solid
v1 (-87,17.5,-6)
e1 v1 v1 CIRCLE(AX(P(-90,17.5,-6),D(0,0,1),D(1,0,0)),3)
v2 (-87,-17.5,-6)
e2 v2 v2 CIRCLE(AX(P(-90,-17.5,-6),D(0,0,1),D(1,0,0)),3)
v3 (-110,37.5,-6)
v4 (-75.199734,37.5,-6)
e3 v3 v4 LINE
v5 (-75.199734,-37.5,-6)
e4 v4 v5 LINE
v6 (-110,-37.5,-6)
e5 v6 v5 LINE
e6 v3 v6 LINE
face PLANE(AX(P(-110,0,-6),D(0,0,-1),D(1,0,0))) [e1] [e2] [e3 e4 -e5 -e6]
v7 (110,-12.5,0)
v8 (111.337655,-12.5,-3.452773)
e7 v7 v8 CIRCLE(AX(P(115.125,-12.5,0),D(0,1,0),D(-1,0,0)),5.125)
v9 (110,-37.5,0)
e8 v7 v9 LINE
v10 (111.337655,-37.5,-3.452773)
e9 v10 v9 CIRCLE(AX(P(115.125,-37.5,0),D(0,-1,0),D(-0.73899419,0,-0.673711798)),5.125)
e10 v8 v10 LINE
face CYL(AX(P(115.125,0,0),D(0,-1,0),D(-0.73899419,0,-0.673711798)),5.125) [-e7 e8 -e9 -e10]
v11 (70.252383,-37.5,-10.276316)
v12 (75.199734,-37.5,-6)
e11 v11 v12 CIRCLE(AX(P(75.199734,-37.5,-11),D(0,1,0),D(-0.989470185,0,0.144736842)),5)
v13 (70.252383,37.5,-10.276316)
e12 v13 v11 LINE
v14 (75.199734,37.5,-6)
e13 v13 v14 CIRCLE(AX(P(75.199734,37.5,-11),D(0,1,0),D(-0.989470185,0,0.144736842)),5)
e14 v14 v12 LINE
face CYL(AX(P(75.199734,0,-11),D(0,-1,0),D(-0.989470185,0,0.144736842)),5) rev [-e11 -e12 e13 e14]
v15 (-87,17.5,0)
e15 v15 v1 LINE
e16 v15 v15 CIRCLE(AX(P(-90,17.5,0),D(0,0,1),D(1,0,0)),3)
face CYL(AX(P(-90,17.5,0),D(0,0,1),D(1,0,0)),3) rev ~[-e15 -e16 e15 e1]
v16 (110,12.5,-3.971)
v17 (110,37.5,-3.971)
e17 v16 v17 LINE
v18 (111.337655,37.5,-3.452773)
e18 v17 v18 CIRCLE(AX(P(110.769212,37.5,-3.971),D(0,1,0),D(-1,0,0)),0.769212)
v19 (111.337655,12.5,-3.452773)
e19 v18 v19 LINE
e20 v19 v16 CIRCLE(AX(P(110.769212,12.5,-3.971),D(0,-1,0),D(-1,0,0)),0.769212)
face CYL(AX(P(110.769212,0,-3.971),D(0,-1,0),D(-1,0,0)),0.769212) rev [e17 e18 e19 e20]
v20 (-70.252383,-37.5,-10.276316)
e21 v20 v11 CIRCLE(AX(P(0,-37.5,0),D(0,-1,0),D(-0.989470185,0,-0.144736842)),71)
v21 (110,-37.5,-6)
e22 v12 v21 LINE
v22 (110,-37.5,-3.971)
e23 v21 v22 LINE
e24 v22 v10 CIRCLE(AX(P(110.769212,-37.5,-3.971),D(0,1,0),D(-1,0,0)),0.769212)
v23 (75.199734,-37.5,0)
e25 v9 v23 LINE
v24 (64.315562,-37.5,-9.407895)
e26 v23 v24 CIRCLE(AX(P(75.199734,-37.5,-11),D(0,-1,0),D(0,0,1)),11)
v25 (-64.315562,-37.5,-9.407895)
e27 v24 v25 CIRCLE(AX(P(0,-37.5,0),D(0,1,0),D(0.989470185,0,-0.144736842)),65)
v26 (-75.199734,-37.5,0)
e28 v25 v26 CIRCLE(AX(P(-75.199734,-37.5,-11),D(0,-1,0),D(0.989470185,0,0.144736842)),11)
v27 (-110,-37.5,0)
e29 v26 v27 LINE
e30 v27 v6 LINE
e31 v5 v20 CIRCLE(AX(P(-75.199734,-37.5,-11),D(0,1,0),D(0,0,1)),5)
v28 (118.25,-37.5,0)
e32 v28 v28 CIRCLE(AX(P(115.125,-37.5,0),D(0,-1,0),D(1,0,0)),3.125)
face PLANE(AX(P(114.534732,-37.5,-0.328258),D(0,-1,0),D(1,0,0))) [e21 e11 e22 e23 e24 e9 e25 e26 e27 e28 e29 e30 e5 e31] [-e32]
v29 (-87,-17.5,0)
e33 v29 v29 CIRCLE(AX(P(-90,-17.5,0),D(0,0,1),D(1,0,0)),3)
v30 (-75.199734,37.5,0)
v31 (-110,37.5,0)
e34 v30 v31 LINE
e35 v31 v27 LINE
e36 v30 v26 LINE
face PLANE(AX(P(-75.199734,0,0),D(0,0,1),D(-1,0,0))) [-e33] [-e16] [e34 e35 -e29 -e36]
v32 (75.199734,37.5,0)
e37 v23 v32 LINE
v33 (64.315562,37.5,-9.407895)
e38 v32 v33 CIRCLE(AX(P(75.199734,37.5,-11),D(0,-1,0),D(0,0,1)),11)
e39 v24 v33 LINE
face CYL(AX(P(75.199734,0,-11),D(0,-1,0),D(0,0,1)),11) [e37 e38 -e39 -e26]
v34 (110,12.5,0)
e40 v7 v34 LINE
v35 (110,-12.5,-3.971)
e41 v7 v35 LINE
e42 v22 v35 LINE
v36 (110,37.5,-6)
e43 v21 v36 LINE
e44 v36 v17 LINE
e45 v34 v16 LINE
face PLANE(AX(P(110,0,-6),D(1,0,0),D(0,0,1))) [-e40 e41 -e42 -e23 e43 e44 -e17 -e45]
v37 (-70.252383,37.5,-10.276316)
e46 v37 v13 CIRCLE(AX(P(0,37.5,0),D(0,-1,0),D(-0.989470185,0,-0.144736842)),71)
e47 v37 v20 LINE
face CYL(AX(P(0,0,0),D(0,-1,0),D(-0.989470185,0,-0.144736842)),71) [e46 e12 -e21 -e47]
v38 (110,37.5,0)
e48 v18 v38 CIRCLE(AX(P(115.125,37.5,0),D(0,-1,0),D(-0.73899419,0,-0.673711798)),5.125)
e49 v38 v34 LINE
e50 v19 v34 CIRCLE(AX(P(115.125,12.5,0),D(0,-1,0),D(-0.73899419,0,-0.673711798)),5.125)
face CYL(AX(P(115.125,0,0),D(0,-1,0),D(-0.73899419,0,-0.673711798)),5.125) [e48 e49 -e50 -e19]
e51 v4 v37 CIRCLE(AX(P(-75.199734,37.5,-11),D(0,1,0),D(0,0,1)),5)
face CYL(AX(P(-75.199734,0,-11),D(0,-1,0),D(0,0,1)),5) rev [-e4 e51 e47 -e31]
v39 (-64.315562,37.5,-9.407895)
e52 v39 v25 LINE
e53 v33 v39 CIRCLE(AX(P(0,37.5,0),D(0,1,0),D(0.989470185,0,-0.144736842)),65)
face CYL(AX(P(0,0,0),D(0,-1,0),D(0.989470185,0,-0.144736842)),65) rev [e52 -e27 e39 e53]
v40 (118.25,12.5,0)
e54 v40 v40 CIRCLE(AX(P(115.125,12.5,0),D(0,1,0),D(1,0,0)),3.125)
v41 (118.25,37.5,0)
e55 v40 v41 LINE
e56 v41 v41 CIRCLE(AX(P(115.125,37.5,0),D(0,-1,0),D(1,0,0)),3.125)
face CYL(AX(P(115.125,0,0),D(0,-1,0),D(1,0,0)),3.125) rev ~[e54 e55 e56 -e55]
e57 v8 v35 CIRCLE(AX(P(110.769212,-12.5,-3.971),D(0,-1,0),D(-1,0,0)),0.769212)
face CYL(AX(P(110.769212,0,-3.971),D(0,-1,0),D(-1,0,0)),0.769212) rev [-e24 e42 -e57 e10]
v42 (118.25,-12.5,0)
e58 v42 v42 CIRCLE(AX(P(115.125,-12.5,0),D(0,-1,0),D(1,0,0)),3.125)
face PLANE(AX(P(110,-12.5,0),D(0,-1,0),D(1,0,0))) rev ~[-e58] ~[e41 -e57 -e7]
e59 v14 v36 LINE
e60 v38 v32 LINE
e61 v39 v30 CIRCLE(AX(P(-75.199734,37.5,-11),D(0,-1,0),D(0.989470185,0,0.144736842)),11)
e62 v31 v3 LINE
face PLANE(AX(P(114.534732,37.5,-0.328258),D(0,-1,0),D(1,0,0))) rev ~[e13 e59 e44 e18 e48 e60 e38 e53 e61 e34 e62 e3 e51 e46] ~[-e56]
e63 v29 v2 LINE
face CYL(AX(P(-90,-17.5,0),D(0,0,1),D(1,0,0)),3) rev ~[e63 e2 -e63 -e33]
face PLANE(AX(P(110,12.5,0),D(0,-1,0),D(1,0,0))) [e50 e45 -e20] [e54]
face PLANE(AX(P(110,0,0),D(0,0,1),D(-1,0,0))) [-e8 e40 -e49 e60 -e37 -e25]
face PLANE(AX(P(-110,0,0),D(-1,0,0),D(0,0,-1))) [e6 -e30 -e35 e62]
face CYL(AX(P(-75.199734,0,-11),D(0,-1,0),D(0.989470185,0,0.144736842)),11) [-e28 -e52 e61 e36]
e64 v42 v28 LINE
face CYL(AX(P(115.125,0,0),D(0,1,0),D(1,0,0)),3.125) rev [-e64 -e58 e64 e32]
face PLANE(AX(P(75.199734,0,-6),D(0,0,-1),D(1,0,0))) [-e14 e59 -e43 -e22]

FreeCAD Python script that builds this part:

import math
import FreeCAD as App
import Part
import Sketcher
from FreeCAD import Vector


def add_polygon(sketch, points):
    """Adds a closed chain of lines whose ends are joined by coincident constraints."""
    first, n = sketch.GeometryCount, len(points)
    for a, b in zip(points, points[1:] + points[:1]):
        sketch.addGeometry(Part.LineSegment(App.Vector(*a, 0), App.Vector(*b, 0)), False)
    for i in range(n):
        sketch.addConstraint(Sketcher.Constraint("Coincident", first + i, 2, first + (i + 1) % n, 1))

doc = App.newDocument("Part")
body = doc.addObject("PartDesign::Body", "Body")

# Sketch on XZ plane
sketch1 = body.newObject("Sketcher::SketchObject", "Sketch")
sketch1.AttachmentSupport = (doc.getObject("XZ_Plane"), [""])
sketch1.MapMode = "FlatFace"
sketch1.addGeometry(Part.ArcOfCircle(Part.Circle(Vector(0, 0, 0), Vector(0, 0, 1), 65), math.radians(-172), math.radians(-8)), False)
sketch1.addGeometry(Part.ArcOfCircle(Part.Circle(Vector(-75, -11, 0), Vector(0, 0, 1), 11), math.radians(8), math.radians(90)), False)
sketch1.addGeometry(Part.LineSegment(Vector(-75, 0, 0), Vector(-110, 0, 0)), False)
sketch1.addGeometry(Part.LineSegment(Vector(-110, 0, 0), Vector(-110, -6, 0)), False)
sketch1.addGeometry(Part.LineSegment(Vector(-110, -6, 0), Vector(-75, -6, 0)), False)
sketch1.addGeometry(Part.ArcOfCircle(Part.Circle(Vector(-75, -11, 0), Vector(0, 0, 1), 5), math.radians(8), math.radians(90)), False)
sketch1.addGeometry(Part.ArcOfCircle(Part.Circle(Vector(0, 0, 0), Vector(0, 0, 1), 71), math.radians(-172), math.radians(-8)), False)
sketch1.addGeometry(Part.ArcOfCircle(Part.Circle(Vector(75, -11, 0), Vector(0, 0, 1), 5), math.radians(90), math.radians(172)), False)
sketch1.addGeometry(Part.LineSegment(Vector(75, -6, 0), Vector(110, -6, 0)), False)
sketch1.addGeometry(Part.LineSegment(Vector(110, -6, 0), Vector(110, 0, 0)), False)
sketch1.addGeometry(Part.LineSegment(Vector(110, 0, 0), Vector(75, 0, 0)), False)
sketch1.addGeometry(Part.ArcOfCircle(Part.Circle(Vector(75, -11, 0), Vector(0, 0, 1), 11), math.radians(90), math.radians(172)), False)
sketch1.addConstraint(Sketcher.Constraint("Tangent", 0, 1, 1, 1))
sketch1.addConstraint(Sketcher.Constraint("Tangent", 1, 2, 2, 1))
sketch1.addConstraint(Sketcher.Constraint("Coincident", 2, 2, 3, 1))
sketch1.addConstraint(Sketcher.Constraint("Coincident", 3, 2, 4, 1))
sketch1.addConstraint(Sketcher.Constraint("Tangent", 4, 2, 5, 2))
sketch1.addConstraint(Sketcher.Constraint("Tangent", 5, 1, 6, 1))
sketch1.addConstraint(Sketcher.Constraint("Tangent", 6, 2, 7, 2))
sketch1.addConstraint(Sketcher.Constraint("Tangent", 7, 1, 8, 1))
sketch1.addConstraint(Sketcher.Constraint("Coincident", 8, 2, 9, 1))
sketch1.addConstraint(Sketcher.Constraint("Coincident", 9, 2, 10, 1))
sketch1.addConstraint(Sketcher.Constraint("Tangent", 10, 2, 11, 1))
sketch1.addConstraint(Sketcher.Constraint("Tangent", 11, 2, 0, 2))
sketch1.addConstraint(Sketcher.Constraint("Horizontal", 2))
sketch1.addConstraint(Sketcher.Constraint("Vertical", 3))
sketch1.addConstraint(Sketcher.Constraint("Horizontal", 4))
sketch1.addConstraint(Sketcher.Constraint("Horizontal", 8))
sketch1.addConstraint(Sketcher.Constraint("Vertical", 9))
sketch1.addConstraint(Sketcher.Constraint("Horizontal", 10))
sketch1.addConstraint(Sketcher.Constraint("Coincident", 0, 3, -1, 1))
sketch1.addConstraint(Sketcher.Constraint("Coincident", 6, 3, -1, 1))
sketch1.addConstraint(Sketcher.Constraint("Coincident", 5, 3, 1, 3))
sketch1.addConstraint(Sketcher.Constraint("Coincident", 11, 3, 7, 3))
sketch1.addConstraint(Sketcher.Constraint("Equal", 5, 7))
sketch1.addConstraint(Sketcher.Constraint("Symmetric", 2, 2, 9, 2, -1, 1))
sketch1.addConstraint(Sketcher.Constraint("PointOnObject", 1, 2, -1))
sketch1.addConstraint(Sketcher.Constraint("Radius", 0, 65.0))
sketch1.addConstraint(Sketcher.Constraint("Radius", 1, 11.0))
sketch1.addConstraint(Sketcher.Constraint("Radius", 5, 5.0))
sketch1.addConstraint(Sketcher.Constraint("DistanceX", 2, 2, -1, 1, 110.0))
pad1 = body.newObject("PartDesign::Pad", "Pad")
pad1.Profile = sketch1
pad1.Length = 75
pad1.Midplane = True

# Sketch on XZ plane
sketch2 = body.newObject("Sketcher::SketchObject", "Sketch001")
sketch2.AttachmentSupport = (doc.getObject("XZ_Plane"), [""])
sketch2.MapMode = "FlatFace"
sketch2.addGeometry(Part.ArcOfCircle(Part.Circle(Vector(110.8, -4, 0), Vector(0, 0, 1), 0.8), math.radians(42), math.radians(180)), False)
sketch2.addGeometry(Part.ArcOfCircle(Part.Circle(Vector(115.1, 0, 0), Vector(0, 0, 1), 5.1), math.radians(-138), math.radians(180)), False)
sketch2.addGeometry(Part.LineSegment(Vector(110, 0, 0), Vector(110, -4, 0)), False)
sketch2.addGeometry(Part.Circle(Vector(115.1, 0, 0), Vector(0, 0, 1), 3.1), False)
sketch2.addConstraint(Sketcher.Constraint("Tangent", 0, 1, 1, 1))
sketch2.addConstraint(Sketcher.Constraint("Tangent", 1, 2, 2, 1))
sketch2.addConstraint(Sketcher.Constraint("Tangent", 2, 2, 0, 2))
sketch2.addConstraint(Sketcher.Constraint("Vertical", 2))
sketch2.addConstraint(Sketcher.Constraint("Coincident", 3, 3, 1, 3))
sketch2.addConstraint(Sketcher.Constraint("PointOnObject", 1, 3, -1))
sketch2.addConstraint(Sketcher.Constraint("Diameter", 3, 6.25))
sketch2.addConstraint(Sketcher.Constraint("DistanceX", -1, 1, 1, 2, 110.0))
sketch2.addConstraint(Sketcher.Constraint("Radius", 1, 5.125))
sketch2.addConstraint(Sketcher.Constraint("DistanceY", 2, 2, 2, 1, 3.971))
pad2 = body.newObject("PartDesign::Pad", "Pad001")
pad2.Profile = sketch2
pad2.Type = "TwoLengths"
pad2.Length = 37.5
pad2.Length2 = 37.5

# Sketch on XY plane
sketch3 = body.newObject("Sketcher::SketchObject", "Sketch002")
sketch3.AttachmentSupport = (doc.getObject("XY_Plane"), [""])
sketch3.MapMode = "FlatFace"
add_polygon(sketch3, [(110, 12), (110, -12), (123, -12), (123, 12)])  # lines 0-3
sketch3.addConstraint(Sketcher.Constraint("Vertical", 0))
sketch3.addConstraint(Sketcher.Constraint("Horizontal", 1))
sketch3.addConstraint(Sketcher.Constraint("Vertical", 2))
sketch3.addConstraint(Sketcher.Constraint("Horizontal", 3))
sketch3.addConstraint(Sketcher.Constraint("DistanceY", 0, 2, 0, 1, 25.0))
sketch3.addConstraint(Sketcher.Constraint("DistanceX", -1, 1, 0, 2, 110.0))
sketch3.addConstraint(Sketcher.Constraint("DistanceY", 0, 2, -1, 1, 12.5))
sketch3.addConstraint(Sketcher.Constraint("DistanceX", 1, 1, 1, 2, 12.726672))
pocket1 = body.newObject("PartDesign::Pocket", "Pocket")
pocket1.Profile = sketch3
pocket1.Type = "ThroughAll"
pocket1.Midplane = True

# Sketch on XY plane
sketch4 = body.newObject("Sketcher::SketchObject", "Sketch003")
sketch4.AttachmentSupport = (doc.getObject("XY_Plane"), [""])
sketch4.MapMode = "FlatFace"
sketch4.addGeometry(Part.Circle(Vector(-90, 17.5, 0), Vector(0, 0, 1), 3), False)
sketch4.addGeometry(Part.Circle(Vector(-90, -17.5, 0), Vector(0, 0, 1), 3), False)
sketch4.addConstraint(Sketcher.Constraint("Equal", 0, 1))
sketch4.addConstraint(Sketcher.Constraint("Symmetric", 0, 3, 1, 3, -1))
sketch4.addConstraint(Sketcher.Constraint("Diameter", 0, 6.0))
sketch4.addConstraint(Sketcher.Constraint("DistanceX", 0, 3, -1, 1, 90.0))
sketch4.addConstraint(Sketcher.Constraint("DistanceY", 1, 3, 0, 3, 35.0))
pocket2 = body.newObject("PartDesign::Pocket", "Pocket001")
pocket2.Profile = sketch4
pocket2.Type = "ThroughAll"

doc.recompute()
